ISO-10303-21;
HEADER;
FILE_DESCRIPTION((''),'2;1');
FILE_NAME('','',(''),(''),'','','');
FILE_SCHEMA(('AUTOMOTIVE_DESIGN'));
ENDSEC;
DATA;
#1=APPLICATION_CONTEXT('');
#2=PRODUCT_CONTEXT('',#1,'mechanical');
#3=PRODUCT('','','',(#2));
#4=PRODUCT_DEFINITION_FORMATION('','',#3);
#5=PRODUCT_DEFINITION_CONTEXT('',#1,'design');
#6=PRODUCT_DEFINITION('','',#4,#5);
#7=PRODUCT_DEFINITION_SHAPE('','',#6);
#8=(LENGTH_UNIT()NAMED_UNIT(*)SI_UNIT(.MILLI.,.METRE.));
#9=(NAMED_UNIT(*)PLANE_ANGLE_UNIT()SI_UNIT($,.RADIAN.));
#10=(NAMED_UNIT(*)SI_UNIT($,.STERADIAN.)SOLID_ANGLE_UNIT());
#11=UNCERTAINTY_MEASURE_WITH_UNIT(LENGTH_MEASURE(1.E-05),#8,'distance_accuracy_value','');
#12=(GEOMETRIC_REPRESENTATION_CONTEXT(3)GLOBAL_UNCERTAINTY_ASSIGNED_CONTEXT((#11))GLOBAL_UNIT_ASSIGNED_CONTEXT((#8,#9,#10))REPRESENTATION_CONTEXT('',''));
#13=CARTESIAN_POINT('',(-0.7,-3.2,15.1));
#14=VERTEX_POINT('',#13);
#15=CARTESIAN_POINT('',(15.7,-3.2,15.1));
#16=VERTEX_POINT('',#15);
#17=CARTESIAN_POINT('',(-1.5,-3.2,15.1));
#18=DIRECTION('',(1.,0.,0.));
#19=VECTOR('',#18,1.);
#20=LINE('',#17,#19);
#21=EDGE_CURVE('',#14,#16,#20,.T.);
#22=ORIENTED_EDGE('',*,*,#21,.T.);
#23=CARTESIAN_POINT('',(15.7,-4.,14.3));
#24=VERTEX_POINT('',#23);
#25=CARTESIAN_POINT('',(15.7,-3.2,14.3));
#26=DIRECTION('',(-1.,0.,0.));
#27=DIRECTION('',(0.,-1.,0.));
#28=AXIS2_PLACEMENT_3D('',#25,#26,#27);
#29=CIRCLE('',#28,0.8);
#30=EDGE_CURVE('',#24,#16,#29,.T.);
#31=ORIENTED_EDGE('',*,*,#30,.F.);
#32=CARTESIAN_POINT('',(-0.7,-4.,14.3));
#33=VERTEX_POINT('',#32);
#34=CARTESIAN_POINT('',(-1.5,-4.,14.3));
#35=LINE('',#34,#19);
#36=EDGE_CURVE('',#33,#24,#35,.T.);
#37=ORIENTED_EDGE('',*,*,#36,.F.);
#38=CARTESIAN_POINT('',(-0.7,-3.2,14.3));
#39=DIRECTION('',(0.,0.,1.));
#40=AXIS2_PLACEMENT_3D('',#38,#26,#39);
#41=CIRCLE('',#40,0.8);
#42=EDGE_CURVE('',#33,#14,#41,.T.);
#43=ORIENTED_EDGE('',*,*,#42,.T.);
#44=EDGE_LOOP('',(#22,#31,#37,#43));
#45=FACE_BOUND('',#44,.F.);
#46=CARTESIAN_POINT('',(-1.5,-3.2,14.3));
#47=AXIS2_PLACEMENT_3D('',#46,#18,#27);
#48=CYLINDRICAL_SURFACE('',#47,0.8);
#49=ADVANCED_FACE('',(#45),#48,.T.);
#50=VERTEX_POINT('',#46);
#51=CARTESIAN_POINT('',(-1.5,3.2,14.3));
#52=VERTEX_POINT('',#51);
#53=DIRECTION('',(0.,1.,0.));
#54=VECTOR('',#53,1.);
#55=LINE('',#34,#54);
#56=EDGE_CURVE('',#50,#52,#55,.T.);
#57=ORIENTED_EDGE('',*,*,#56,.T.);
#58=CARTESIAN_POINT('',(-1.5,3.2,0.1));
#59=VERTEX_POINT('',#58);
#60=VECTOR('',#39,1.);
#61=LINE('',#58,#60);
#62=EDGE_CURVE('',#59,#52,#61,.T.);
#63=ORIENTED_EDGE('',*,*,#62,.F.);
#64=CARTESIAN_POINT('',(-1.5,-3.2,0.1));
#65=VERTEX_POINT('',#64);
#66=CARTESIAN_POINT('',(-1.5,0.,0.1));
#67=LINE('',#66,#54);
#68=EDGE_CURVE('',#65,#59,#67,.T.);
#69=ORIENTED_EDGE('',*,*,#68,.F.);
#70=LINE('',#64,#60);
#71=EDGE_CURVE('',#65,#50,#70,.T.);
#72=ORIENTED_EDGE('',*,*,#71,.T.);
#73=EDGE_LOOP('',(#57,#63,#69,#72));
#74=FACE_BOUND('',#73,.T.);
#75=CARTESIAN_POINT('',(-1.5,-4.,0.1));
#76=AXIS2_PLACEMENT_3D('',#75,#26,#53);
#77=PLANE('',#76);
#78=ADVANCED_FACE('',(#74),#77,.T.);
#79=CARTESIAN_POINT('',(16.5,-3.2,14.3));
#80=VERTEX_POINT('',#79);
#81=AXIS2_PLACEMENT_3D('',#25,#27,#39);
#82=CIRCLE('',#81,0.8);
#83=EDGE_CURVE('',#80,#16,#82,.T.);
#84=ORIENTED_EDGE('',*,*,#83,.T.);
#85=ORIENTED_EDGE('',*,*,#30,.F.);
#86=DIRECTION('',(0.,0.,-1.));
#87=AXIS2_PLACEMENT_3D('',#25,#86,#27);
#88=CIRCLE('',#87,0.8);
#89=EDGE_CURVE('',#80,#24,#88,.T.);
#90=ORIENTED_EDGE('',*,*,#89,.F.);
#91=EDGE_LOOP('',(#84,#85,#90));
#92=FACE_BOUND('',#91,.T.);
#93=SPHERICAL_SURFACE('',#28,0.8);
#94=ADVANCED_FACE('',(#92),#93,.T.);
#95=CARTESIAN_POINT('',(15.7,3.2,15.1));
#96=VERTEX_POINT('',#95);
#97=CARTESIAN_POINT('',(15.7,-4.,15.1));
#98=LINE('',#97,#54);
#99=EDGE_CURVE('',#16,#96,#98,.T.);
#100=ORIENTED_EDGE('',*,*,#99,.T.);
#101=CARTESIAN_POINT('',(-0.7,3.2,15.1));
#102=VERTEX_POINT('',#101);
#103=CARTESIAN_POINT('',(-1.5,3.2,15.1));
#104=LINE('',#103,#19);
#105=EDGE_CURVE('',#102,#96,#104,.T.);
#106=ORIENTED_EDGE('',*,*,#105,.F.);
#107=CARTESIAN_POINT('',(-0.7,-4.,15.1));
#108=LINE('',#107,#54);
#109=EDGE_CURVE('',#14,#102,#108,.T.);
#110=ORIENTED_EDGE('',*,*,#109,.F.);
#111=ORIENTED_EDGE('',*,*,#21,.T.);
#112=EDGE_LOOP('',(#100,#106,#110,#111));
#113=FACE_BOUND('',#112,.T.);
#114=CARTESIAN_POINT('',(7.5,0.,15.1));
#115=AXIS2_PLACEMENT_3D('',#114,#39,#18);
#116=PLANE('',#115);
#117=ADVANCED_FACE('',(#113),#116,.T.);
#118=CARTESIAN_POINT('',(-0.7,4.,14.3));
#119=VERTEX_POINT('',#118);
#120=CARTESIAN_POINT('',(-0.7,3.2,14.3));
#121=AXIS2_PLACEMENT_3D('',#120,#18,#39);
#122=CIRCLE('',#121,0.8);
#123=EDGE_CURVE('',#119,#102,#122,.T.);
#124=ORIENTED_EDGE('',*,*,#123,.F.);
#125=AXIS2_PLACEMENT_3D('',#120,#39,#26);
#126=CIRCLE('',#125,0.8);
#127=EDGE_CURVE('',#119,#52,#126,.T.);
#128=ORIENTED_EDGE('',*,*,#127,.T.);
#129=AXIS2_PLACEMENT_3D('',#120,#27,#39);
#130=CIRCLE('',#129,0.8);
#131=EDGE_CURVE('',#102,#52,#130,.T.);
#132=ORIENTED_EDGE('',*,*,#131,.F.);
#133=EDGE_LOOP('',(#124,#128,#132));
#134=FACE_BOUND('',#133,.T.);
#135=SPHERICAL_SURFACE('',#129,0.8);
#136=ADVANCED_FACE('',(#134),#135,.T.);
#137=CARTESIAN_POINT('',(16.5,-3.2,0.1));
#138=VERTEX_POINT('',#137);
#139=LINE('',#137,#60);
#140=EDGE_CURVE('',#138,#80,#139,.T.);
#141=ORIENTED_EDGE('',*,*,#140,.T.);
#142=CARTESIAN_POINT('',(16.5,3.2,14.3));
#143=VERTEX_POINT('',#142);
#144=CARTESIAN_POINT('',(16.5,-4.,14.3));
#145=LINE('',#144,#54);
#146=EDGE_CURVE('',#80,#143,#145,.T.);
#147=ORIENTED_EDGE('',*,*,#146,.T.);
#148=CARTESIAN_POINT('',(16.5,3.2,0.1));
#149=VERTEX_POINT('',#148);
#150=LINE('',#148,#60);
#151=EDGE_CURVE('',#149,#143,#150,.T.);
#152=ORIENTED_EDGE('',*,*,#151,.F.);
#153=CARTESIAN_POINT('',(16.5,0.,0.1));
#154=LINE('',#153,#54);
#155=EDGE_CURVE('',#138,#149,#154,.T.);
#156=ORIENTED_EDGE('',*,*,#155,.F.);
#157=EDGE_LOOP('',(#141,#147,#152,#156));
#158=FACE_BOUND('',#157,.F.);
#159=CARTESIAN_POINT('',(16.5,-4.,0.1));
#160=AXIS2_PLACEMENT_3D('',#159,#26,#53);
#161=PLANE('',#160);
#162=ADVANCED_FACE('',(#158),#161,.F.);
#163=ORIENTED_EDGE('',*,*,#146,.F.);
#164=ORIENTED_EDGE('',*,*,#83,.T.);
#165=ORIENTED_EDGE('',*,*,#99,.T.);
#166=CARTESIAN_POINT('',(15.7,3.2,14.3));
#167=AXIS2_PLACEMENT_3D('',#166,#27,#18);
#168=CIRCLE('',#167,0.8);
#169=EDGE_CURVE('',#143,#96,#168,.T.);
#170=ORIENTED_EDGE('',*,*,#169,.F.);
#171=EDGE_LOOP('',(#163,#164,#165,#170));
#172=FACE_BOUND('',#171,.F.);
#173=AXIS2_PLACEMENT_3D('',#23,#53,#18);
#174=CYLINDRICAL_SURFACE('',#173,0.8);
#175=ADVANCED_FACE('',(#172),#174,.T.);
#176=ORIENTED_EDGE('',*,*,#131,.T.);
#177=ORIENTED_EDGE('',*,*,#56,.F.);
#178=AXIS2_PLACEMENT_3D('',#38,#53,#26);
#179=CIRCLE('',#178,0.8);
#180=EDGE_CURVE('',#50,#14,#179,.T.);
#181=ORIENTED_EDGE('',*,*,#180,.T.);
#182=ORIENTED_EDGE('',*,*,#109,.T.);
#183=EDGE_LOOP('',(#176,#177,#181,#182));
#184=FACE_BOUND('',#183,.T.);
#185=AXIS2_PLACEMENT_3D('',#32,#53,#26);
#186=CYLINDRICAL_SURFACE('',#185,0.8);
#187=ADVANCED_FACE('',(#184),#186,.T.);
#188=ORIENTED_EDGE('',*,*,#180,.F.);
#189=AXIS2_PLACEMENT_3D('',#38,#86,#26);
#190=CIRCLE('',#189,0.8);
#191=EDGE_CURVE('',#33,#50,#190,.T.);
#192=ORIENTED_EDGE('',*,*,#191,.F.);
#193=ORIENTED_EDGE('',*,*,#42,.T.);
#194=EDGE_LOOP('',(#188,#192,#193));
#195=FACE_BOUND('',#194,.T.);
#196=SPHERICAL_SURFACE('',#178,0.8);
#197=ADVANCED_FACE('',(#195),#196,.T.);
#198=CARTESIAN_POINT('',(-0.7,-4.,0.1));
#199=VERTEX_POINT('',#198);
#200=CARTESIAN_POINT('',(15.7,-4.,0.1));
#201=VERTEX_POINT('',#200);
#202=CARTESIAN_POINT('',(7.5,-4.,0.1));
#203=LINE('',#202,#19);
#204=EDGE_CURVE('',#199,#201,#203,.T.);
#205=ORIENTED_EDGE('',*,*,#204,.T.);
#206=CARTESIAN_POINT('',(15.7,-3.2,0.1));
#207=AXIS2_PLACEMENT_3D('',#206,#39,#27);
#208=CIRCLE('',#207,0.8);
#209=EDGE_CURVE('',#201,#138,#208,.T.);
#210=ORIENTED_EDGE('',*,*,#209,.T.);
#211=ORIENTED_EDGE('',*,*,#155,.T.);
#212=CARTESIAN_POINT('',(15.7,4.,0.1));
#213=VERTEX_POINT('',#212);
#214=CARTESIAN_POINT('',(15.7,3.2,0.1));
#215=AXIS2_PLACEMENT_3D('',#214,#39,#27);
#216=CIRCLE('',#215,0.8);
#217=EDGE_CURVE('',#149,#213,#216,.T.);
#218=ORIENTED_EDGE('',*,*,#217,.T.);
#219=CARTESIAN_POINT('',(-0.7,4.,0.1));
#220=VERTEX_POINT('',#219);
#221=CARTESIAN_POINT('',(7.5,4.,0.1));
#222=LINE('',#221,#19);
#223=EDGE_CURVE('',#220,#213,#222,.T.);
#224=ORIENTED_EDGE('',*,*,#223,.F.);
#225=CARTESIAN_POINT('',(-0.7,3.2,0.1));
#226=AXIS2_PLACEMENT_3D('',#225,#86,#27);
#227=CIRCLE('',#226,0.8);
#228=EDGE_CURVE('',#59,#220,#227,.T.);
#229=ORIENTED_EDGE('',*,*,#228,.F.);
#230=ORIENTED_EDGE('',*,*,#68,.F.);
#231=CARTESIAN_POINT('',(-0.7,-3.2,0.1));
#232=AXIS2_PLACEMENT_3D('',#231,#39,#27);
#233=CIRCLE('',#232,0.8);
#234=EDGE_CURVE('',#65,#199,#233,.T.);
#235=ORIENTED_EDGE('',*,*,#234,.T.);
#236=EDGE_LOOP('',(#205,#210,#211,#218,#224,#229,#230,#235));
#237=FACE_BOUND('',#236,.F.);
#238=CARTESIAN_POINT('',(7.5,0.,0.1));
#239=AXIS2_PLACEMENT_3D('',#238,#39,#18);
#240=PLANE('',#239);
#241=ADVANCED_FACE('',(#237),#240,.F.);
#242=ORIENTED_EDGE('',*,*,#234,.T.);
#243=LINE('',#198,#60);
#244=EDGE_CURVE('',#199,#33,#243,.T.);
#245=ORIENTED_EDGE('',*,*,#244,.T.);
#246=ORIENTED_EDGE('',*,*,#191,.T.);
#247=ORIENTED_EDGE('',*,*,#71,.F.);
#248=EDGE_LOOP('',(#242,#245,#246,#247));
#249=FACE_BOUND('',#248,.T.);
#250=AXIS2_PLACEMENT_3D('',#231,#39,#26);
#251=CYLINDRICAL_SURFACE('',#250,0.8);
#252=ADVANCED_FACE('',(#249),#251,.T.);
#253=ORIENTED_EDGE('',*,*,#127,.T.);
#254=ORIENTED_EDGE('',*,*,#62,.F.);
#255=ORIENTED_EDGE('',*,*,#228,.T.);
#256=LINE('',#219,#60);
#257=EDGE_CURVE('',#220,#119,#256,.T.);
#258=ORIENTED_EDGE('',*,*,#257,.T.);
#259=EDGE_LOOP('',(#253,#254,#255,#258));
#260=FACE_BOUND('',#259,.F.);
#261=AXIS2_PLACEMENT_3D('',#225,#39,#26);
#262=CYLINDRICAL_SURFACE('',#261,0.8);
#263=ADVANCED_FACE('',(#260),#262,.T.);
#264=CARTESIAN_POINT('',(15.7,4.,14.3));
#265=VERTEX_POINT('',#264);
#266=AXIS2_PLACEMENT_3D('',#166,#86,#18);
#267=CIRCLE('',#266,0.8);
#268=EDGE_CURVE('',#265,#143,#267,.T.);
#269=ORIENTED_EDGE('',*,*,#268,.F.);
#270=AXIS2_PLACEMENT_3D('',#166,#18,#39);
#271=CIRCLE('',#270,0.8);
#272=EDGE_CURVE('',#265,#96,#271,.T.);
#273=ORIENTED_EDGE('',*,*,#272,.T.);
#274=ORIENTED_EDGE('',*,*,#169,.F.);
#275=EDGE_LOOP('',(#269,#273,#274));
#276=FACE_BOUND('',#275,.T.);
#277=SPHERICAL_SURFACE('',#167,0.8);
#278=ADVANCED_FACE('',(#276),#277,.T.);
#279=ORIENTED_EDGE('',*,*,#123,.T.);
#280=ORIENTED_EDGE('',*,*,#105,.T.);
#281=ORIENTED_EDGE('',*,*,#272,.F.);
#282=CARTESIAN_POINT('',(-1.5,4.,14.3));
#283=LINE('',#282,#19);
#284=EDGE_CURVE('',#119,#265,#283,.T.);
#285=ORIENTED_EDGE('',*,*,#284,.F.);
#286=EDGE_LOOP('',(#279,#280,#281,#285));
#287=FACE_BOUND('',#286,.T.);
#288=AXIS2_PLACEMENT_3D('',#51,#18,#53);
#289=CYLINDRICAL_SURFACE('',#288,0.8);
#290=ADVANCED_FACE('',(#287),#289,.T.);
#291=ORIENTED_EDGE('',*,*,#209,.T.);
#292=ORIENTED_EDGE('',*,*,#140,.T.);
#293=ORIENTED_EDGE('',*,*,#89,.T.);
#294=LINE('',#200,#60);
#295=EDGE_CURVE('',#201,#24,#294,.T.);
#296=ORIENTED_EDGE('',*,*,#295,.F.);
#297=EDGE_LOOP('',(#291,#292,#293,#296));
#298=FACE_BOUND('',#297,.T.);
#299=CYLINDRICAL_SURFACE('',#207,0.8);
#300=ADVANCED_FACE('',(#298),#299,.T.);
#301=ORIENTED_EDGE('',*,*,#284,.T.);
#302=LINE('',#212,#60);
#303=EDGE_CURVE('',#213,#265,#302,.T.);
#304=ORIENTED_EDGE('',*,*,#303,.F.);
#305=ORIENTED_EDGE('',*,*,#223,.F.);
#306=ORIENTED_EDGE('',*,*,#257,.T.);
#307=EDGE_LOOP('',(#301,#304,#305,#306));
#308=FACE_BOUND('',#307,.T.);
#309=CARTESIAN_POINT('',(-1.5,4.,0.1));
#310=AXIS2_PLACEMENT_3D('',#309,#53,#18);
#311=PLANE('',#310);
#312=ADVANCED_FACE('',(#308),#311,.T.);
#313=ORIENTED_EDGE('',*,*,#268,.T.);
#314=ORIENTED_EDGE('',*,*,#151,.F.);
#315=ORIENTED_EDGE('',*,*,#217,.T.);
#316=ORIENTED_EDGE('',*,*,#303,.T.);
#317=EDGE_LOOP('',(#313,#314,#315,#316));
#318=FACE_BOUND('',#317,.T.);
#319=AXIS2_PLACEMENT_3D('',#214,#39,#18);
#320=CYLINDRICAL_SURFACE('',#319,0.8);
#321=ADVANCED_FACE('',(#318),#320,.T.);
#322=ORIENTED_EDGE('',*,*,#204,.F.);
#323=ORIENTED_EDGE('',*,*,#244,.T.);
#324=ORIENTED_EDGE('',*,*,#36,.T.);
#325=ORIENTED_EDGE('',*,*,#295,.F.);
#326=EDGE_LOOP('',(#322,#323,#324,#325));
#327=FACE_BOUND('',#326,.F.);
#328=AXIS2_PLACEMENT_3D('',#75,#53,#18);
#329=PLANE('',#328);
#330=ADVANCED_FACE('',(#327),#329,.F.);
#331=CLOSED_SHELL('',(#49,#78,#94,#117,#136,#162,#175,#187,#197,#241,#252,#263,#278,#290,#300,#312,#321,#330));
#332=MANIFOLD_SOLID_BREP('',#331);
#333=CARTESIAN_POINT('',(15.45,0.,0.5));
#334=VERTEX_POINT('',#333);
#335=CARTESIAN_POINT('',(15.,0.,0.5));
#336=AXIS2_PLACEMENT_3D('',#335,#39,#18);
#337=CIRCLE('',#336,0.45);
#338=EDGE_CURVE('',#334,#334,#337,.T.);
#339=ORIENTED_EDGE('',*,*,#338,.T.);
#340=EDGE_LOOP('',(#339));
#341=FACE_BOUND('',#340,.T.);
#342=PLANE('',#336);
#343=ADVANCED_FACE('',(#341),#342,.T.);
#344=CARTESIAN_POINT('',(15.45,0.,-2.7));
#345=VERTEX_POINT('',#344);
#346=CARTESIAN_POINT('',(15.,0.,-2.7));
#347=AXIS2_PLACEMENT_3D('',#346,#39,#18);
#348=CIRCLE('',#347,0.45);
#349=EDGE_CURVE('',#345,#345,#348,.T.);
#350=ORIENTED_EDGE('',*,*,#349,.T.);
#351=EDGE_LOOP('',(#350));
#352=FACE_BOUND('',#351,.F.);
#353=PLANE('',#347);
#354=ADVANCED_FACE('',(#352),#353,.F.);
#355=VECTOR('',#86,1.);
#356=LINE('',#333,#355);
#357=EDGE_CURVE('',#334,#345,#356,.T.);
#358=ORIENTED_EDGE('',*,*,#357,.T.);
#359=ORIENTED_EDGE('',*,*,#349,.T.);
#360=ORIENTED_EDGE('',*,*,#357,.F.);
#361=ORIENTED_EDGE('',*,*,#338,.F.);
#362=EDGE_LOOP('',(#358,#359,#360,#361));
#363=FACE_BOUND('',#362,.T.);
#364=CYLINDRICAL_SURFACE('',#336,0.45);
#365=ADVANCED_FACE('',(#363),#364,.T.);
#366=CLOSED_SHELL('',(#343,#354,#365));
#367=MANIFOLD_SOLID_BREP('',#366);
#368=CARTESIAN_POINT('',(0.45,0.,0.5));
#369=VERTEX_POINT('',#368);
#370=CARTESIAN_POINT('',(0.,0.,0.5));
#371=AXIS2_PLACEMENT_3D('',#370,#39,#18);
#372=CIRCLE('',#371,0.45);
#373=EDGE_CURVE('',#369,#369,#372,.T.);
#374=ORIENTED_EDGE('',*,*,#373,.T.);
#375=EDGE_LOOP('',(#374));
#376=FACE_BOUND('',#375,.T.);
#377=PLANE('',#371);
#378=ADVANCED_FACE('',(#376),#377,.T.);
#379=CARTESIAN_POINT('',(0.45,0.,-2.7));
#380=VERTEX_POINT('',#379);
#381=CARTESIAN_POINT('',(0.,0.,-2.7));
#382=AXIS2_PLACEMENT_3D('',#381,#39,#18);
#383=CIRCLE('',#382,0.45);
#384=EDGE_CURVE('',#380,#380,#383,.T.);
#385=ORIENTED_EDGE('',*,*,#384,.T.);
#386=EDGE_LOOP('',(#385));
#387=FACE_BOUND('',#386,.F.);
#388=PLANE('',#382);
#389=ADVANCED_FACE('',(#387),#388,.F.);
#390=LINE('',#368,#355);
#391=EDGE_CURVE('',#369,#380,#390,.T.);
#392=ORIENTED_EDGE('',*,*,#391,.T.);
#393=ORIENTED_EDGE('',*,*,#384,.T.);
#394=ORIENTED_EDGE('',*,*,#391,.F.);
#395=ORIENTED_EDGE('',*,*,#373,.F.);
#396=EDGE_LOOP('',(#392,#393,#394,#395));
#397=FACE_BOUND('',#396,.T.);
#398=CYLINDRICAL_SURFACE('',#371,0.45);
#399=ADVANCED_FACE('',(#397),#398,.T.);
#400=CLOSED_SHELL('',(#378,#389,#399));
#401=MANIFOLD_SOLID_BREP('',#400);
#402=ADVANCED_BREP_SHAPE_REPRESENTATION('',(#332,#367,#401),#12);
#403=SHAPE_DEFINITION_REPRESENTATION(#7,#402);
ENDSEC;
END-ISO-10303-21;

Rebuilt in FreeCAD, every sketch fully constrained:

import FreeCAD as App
import Part
import Sketcher
from FreeCAD import Vector
Q = App.Units.Quantity


def edges_at(feature, points):
    """Names of the edges that pass closest to the given points."""
    edges = feature.Shape.Edges
    near = lambda p: min(range(len(edges)), key=lambda i: edges[i].distToShape(Part.Vertex(*p))[0])
    return sorted({f"Edge{near(p) + 1}" for p in points})

doc = App.newDocument("Part")
body = doc.addObject("PartDesign::Body", "Body")

sketch1 = doc.addObject("Sketcher::SketchObject", "Sketch")
body.addObject(sketch1)
sketch1.AttachmentSupport = (doc.XY_Plane, [""])
sketch1.MapMode = "FlatFace"
sketch1.AttachmentOffset = App.Placement(Vector(0, 0, 0.1), App.Rotation())
sketch1.addGeometry([
    Part.LineSegment(Vector(-1.5, 4, 0), Vector(-1.5, -4, 0)),
    Part.LineSegment(Vector(-1.5, -4, 0), Vector(16.5, -4, 0)),
    Part.LineSegment(Vector(16.5, -4, 0), Vector(16.5, 4, 0)),
    Part.LineSegment(Vector(16.5, 4, 0), Vector(-1.5, 4, 0)),
], False)
sketch1.addConstraint([
    Sketcher.Constraint("Coincident", 0, 2, 1, 1),
    Sketcher.Constraint("Coincident", 1, 2, 2, 1),
    Sketcher.Constraint("Coincident", 2, 2, 3, 1),
    Sketcher.Constraint("Coincident", 3, 2, 0, 1),
    Sketcher.Constraint("Vertical", 0),
    Sketcher.Constraint("Horizontal", 1),
    Sketcher.Constraint("Vertical", 2),
    Sketcher.Constraint("Horizontal", 3),
    Sketcher.Constraint("DistanceX", 1, 1, 1, 2, Q("18 mm")),
    Sketcher.Constraint("DistanceY", 0, 2, 0, 1, Q("8 mm")),
    Sketcher.Constraint("DistanceY", 0, 2, -1, 1, Q("4 mm")),
    Sketcher.Constraint("DistanceX", 0, 2, -1, 1, Q("1.5 mm")),
])
pad1 = doc.addObject("PartDesign::Pad", "Pad")
body.addObject(pad1)
pad1.Profile = sketch1
pad1.Length = 15
doc.recompute()

fillet = doc.addObject("PartDesign::Fillet", "Fillet")
body.addObject(fillet)
fillet.Base = (pad1, edges_at(pad1, [
    (-1.5, 0, 15.1),
    (-1.5, -4, 7.6),
    (7.5, -4, 15.1),
    (16.5, -4, 7.6),
    (16.5, 0, 15.1),
    (16.5, 4, 7.6),
    (7.5, 4, 15.1),
    (-1.5, 4, 7.6),
]))
fillet.Radius = 0.8
body2 = doc.addObject("PartDesign::Body", "Body001")
body2.AllowCompound = True

sketch2 = doc.addObject("Sketcher::SketchObject", "Sketch001")
body2.addObject(sketch2)
sketch2.AttachmentSupport = (doc.getObject("XY_Plane001"), [""])
sketch2.MapMode = "FlatFace"
sketch2.AttachmentOffset = App.Placement(Vector(0, 0, 0.5), App.Rotation())
sketch2.addGeometry([
    Part.Circle(Vector(0, 0, 0), Vector(0, 0, 1), 0.45),
    Part.Circle(Vector(15, 0, 0), Vector(0, 0, 1), 0.45),
], False)
sketch2.addConstraint([
    Sketcher.Constraint("Coincident", 0, 3, -1, 1),
    Sketcher.Constraint("Equal", 0, 1),
    Sketcher.Constraint("PointOnObject", 1, 3, -1),
    Sketcher.Constraint("Diameter", 0, Q("0.9 mm")),
    Sketcher.Constraint("DistanceX", -1, 1, 1, 3, Q("15 mm")),
])
pad2 = doc.addObject("PartDesign::Pad", "Pad001")
body2.addObject(pad2)
pad2.Profile = sketch2
pad2.Length = 3.2
pad2.Reversed = True

doc.recompute()
